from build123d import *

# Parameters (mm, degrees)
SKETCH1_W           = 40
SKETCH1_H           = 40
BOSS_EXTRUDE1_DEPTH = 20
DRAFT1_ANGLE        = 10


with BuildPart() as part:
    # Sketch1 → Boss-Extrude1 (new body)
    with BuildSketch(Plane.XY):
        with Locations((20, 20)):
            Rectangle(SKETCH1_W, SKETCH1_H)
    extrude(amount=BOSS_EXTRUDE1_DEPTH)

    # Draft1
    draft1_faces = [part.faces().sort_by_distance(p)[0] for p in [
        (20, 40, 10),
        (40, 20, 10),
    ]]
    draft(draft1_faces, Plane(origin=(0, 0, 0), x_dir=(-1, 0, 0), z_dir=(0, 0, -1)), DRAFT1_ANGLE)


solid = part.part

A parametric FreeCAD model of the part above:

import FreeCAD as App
import Part
import Sketcher

V = App.Vector


def faces_at(feature, points):
    """Names of the faces that lie closest to the given points."""
    faces = feature.Shape.Faces
    near = lambda p: min(range(len(faces)), key=lambda i: faces[i].distToShape(Part.Vertex(*p))[0])
    return sorted({f"Face{near(p) + 1}" for p in points})


def add_polygon(sketch, points):
    """Adds a closed chain of lines whose ends are joined by coincident constraints."""
    first, n = sketch.GeometryCount, len(points)
    for a, b in zip(points, points[1:] + points[:1]):
        sketch.addGeometry(Part.LineSegment(App.Vector(*a, 0), App.Vector(*b, 0)), False)
    for i in range(n):
        sketch.addConstraint(Sketcher.Constraint("Coincident", first + i, 2, first + (i + 1) % n, 1))

doc = App.newDocument("Part")
body = doc.addObject("PartDesign::Body", "Body")

sketch1 = doc.addObject("Sketcher::SketchObject", "Sketch")
body.addObject(sketch1)
sketch1.AttachmentSupport = (doc.XY_Plane, [""])
sketch1.MapMode = "FlatFace"
add_polygon(sketch1, [(0, 40), (0, 0), (40, 0), (40, 40)])
sketch1.addConstraint(Sketcher.Constraint("Vertical", 0))
sketch1.addConstraint(Sketcher.Constraint("Horizontal", 1))
sketch1.addConstraint(Sketcher.Constraint("Vertical", 2))
sketch1.addConstraint(Sketcher.Constraint("Horizontal", 3))
sketch1.addConstraint(Sketcher.Constraint("Coincident", 0, 2, -1, 1))
sketch1.addConstraint(Sketcher.Constraint("Equal", 3, 0))
sketch1.addConstraint(Sketcher.Constraint("DistanceX", 1, 1, 1, 2, 40.0))
pad1 = doc.addObject("PartDesign::Pad", "Pad")
body.addObject(pad1)
pad1.Profile = sketch1
pad1.Length = 20
doc.recompute()

draft = doc.addObject("PartDesign::Draft", "Draft")
body.addObject(draft)
draft.Base = (pad1, faces_at(pad1, [(20, 40, 10), (40, 20, 10)]))
draft.NeutralPlane = (doc.XY_Plane, [""])
draft.Angle = 10
draft.Reversed = True

doc.recompute()
